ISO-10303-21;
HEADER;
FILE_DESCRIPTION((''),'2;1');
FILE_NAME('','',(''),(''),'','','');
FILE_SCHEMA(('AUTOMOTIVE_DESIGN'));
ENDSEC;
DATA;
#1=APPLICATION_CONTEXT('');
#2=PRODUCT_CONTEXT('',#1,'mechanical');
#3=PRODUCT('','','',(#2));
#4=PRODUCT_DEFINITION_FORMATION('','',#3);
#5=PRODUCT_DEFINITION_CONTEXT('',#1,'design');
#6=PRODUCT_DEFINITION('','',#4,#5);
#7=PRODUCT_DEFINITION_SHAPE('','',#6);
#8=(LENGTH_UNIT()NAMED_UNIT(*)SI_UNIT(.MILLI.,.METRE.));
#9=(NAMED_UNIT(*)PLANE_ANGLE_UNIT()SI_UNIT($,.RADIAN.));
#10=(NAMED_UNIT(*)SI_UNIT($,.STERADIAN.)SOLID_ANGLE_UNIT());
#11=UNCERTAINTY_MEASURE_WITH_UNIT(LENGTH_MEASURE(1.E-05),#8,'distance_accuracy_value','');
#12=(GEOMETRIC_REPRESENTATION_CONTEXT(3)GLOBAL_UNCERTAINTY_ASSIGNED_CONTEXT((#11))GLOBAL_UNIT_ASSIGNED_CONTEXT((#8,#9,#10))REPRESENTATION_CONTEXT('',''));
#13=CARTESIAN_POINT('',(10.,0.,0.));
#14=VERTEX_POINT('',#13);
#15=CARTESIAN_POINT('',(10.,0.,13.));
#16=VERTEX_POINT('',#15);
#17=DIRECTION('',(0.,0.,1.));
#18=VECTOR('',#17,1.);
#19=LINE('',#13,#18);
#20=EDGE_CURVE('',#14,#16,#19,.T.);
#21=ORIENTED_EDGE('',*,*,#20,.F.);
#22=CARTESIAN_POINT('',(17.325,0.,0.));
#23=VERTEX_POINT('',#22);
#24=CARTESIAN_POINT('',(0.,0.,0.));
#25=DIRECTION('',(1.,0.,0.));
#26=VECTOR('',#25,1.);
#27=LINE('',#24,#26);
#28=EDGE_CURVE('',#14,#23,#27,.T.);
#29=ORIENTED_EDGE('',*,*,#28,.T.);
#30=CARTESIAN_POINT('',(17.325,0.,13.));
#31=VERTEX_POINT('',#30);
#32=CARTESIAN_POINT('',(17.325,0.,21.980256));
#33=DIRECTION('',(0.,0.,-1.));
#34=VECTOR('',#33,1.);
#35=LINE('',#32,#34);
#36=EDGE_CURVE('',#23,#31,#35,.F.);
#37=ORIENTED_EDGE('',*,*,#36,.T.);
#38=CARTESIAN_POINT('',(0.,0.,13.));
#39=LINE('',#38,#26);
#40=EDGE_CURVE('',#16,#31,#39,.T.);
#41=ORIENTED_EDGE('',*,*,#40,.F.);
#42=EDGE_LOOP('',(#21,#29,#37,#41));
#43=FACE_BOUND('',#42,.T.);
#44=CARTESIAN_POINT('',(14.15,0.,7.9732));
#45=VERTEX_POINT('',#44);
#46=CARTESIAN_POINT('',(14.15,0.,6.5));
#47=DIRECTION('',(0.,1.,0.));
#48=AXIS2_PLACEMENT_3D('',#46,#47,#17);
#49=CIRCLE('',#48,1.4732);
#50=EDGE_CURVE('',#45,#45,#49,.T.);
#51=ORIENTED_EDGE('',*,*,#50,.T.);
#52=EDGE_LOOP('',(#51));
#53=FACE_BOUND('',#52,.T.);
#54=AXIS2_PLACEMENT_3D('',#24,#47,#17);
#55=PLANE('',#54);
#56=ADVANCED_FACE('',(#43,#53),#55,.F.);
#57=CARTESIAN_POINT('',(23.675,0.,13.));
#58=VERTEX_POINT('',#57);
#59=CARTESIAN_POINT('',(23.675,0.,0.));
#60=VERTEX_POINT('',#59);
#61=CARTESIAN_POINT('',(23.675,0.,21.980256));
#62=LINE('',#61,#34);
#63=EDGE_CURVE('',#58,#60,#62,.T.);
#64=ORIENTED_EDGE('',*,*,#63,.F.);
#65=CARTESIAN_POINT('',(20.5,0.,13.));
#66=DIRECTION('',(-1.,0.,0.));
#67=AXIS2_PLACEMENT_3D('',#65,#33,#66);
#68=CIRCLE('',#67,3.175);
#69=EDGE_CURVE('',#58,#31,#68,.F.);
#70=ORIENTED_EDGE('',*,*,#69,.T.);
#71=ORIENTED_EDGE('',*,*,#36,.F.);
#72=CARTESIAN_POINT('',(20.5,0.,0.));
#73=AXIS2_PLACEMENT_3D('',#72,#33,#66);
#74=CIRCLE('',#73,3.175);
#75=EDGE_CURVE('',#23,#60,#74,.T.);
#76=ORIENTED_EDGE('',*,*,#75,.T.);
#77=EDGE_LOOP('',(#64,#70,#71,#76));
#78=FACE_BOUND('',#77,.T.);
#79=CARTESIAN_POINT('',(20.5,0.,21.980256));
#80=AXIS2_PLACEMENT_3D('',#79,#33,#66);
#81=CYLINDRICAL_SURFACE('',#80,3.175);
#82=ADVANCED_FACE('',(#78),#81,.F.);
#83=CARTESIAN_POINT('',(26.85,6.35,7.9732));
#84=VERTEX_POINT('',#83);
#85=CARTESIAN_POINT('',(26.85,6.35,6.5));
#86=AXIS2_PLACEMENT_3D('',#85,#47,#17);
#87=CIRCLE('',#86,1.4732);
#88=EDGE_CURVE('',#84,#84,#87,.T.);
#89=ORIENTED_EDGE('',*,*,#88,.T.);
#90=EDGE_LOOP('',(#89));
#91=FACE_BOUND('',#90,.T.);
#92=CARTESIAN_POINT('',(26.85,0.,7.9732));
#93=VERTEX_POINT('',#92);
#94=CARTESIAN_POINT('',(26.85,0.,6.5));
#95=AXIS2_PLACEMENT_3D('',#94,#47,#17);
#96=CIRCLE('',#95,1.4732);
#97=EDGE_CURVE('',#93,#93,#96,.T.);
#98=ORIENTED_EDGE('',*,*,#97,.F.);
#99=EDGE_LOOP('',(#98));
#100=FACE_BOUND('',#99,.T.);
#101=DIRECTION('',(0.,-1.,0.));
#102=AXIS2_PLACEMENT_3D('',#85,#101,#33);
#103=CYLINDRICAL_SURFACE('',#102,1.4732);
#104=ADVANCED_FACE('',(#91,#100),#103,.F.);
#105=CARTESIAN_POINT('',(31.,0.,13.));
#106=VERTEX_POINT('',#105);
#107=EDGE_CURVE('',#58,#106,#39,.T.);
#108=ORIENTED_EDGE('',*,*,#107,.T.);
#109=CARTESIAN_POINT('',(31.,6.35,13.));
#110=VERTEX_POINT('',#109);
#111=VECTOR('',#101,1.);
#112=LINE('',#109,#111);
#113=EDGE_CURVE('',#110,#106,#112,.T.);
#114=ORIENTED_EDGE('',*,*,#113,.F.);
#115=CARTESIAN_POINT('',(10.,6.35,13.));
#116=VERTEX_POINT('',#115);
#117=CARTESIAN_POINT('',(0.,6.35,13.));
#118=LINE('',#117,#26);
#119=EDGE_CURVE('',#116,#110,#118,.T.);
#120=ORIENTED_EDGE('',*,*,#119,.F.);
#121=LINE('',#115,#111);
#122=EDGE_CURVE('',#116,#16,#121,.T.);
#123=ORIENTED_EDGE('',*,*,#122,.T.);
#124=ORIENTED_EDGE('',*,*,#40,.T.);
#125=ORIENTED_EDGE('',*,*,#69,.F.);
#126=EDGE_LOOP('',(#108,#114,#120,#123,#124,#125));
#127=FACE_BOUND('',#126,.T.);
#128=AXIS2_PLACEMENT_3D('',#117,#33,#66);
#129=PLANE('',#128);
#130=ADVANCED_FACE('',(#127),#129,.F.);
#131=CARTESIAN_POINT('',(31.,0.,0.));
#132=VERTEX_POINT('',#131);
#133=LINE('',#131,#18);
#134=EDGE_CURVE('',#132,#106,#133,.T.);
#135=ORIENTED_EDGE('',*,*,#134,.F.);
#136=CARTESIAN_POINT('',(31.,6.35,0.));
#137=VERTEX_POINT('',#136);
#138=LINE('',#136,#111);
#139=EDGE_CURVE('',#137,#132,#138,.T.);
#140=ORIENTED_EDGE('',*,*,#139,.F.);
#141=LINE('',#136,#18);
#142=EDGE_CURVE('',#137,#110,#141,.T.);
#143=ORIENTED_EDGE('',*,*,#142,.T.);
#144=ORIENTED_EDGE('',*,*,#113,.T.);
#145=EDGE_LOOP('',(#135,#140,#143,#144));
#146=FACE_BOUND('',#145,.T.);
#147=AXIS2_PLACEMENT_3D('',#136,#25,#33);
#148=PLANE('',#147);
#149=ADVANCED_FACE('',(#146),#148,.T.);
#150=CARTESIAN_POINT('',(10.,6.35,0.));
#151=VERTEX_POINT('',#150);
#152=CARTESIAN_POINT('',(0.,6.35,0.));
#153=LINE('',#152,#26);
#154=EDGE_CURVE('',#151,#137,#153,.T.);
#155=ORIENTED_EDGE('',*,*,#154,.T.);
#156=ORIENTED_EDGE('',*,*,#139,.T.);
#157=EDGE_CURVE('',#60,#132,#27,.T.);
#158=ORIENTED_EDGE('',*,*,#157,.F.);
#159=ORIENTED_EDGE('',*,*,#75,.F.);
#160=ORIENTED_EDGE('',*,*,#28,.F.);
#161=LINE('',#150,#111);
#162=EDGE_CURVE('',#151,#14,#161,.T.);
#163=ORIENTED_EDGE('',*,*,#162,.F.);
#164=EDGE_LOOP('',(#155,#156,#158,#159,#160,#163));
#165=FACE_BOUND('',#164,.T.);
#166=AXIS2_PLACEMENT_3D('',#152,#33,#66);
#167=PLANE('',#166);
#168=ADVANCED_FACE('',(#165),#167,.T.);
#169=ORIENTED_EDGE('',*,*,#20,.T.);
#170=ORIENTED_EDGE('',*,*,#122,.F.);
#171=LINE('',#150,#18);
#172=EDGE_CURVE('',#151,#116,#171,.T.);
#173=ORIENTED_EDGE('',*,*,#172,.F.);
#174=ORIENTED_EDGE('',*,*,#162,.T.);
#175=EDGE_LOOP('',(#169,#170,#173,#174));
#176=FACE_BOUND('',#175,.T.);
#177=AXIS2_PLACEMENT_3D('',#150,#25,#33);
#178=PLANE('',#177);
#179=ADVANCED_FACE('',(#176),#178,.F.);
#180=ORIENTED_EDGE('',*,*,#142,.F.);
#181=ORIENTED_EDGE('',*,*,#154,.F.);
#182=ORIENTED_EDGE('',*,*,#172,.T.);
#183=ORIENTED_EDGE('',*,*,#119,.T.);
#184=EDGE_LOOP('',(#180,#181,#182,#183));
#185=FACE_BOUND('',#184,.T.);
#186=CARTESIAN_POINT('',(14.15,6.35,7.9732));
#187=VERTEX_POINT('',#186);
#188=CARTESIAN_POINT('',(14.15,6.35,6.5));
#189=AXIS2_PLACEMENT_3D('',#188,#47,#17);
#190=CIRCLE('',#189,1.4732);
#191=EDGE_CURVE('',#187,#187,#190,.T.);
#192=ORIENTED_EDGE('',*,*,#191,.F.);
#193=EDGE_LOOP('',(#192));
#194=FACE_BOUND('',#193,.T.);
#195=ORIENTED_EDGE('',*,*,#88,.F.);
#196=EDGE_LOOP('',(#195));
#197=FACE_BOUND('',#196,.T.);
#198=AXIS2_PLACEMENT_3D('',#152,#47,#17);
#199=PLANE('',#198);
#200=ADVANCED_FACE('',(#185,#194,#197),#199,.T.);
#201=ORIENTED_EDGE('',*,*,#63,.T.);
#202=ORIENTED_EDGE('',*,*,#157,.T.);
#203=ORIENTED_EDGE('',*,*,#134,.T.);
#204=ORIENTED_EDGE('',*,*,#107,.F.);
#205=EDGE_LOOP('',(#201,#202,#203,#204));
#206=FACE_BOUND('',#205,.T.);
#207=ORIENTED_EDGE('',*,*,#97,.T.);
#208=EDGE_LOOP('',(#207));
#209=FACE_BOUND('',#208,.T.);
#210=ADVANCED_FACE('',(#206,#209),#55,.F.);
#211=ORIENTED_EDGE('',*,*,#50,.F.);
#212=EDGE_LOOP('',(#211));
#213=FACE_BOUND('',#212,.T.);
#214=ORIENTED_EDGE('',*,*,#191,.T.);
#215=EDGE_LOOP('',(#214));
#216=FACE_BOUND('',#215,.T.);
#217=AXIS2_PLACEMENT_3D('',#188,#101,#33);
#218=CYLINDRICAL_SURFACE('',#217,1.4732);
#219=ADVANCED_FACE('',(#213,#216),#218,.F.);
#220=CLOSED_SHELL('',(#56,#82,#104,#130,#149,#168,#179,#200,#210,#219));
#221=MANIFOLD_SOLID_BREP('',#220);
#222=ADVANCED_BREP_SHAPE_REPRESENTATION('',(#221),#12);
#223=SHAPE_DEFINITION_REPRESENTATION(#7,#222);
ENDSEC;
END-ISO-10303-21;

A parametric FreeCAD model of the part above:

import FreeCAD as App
import Part
import Sketcher

V = App.Vector
Q = App.Units.Quantity


def add_polygon(sketch, points):
    """Adds a closed chain of lines whose ends are joined by coincident constraints."""
    first, n = sketch.GeometryCount, len(points)
    for a, b in zip(points, points[1:] + points[:1]):
        sketch.addGeometry(Part.LineSegment(App.Vector(*a, 0), App.Vector(*b, 0)), False)
    for i in range(n):
        sketch.addConstraint(Sketcher.Constraint("Coincident", first + i, 2, first + (i + 1) % n, 1))

doc = App.newDocument("Part")
body = doc.addObject("PartDesign::Body", "Body")

# Sketch on XZ plane
sketch1 = body.newObject("Sketcher::SketchObject", "Sketch")
sketch1.AttachmentSupport = (doc.getObject("XZ_Plane"), [""])
sketch1.MapMode = "FlatFace"
add_polygon(sketch1, [(10, 0), (10, 13), (31, 13), (31, 0)])  # lines 0-3
sketch1.addGeometry(Part.Circle(V(14.2, 6.5, 0), V(0, 0, 1), 1.5), False)  # 4
sketch1.addGeometry(Part.Circle(V(26.9, 6.5, 0), V(0, 0, 1), 1.5), False)  # 5
sketch1.addConstraint(Sketcher.Constraint("Vertical", 0))
sketch1.addConstraint(Sketcher.Constraint("Horizontal", 1))
sketch1.addConstraint(Sketcher.Constraint("Vertical", 2))
sketch1.addConstraint(Sketcher.Constraint("Horizontal", 3))
sketch1.addConstraint(Sketcher.Constraint("Equal", 4, 5))
sketch1.addConstraint(Sketcher.Constraint("PointOnObject", 2, 2, -1))
sketch1.addConstraint(Sketcher.Constraint("Horizontal", 4, 3, 5, 3))
sketch1.addConstraint(Sketcher.Constraint("DistanceX", 1, 1, 1, 2, Q("21 mm")))
sketch1.addConstraint(Sketcher.Constraint("DistanceY", 0, 1, 0, 2, Q("13 mm")))
sketch1.addConstraint(Sketcher.Constraint("DistanceX", -1, 1, 0, 2, Q("10 mm")))
sketch1.addConstraint(Sketcher.Constraint("Diameter", 4, Q("2.9464 mm")))
sketch1.addConstraint(Sketcher.Constraint("DistanceY", -1, 1, 4, 3, Q("6.5 mm")))
sketch1.addConstraint(Sketcher.Constraint("DistanceX", 4, 3, 5, 3, Q("12.7 mm")))
sketch1.addConstraint(Sketcher.Constraint("DistanceX", -1, 1, 4, 3, Q("14.15 mm")))
pad1 = body.newObject("PartDesign::Pad", "Pad")
pad1.Profile = sketch1
pad1.Length = 6.35
pad1.Reversed = True

# Sketch on XY plane
sketch2 = body.newObject("Sketcher::SketchObject", "Sketch001")
sketch2.AttachmentSupport = (doc.getObject("XY_Plane"), [""])
sketch2.MapMode = "FlatFace"
sketch2.addGeometry(Part.Circle(V(20.5, 0, 0), V(0, 0, 1), 3.2), False)
sketch2.addConstraint(Sketcher.Constraint("PointOnObject", 0, 3, -1))
sketch2.addConstraint(Sketcher.Constraint("Diameter", 0, Q("6.35 mm")))
sketch2.addConstraint(Sketcher.Constraint("DistanceX", -1, 1, 0, 3, Q("20.5 mm")))
pocket1 = body.newObject("PartDesign::Pocket", "Pocket")
pocket1.Profile = sketch2
pocket1.Length = 13
pocket1.Reversed = True

doc.recompute()
